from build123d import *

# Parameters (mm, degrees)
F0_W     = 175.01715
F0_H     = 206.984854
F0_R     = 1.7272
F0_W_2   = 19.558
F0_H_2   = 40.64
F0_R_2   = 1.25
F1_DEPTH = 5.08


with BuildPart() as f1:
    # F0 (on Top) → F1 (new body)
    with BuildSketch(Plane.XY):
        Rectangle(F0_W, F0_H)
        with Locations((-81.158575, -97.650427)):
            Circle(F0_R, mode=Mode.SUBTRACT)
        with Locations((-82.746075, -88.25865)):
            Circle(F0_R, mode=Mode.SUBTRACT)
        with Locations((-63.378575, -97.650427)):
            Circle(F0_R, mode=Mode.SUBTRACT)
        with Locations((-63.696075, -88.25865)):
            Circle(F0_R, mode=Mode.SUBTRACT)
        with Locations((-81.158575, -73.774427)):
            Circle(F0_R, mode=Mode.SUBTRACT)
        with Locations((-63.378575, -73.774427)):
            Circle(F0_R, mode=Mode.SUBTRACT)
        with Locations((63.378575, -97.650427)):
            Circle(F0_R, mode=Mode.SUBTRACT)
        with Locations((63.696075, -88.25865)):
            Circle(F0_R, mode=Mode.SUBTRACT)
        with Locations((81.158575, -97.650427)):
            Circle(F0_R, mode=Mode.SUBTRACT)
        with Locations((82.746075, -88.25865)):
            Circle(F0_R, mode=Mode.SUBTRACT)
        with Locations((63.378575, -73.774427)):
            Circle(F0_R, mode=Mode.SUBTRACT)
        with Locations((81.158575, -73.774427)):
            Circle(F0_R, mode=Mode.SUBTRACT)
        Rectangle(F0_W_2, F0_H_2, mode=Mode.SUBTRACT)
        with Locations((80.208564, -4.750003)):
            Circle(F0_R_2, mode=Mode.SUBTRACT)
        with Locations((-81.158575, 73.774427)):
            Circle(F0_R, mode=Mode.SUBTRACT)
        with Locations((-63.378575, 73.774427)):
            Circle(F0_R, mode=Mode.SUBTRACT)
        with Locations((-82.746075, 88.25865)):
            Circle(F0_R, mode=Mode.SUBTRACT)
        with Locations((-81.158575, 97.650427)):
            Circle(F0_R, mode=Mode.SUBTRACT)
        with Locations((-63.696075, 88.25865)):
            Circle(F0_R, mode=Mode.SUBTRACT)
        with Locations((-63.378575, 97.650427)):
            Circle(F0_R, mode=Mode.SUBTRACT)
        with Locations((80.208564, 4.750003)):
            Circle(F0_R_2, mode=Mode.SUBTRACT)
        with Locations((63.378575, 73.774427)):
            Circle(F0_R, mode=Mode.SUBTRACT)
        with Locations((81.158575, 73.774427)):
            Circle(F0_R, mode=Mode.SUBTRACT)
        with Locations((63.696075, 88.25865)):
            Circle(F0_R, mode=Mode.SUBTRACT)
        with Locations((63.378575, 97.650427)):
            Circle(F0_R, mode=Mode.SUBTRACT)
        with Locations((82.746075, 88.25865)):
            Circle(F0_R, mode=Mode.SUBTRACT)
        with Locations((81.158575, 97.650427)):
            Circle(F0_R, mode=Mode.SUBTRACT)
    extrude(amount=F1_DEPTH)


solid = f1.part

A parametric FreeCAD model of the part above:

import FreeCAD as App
import Part
import Sketcher
from FreeCAD import Vector
Q = App.Units.Quantity

doc = App.newDocument("Part")
body = doc.addObject("PartDesign::Body", "Body")

# Sketch on XY plane
sketch1 = body.newObject("Sketcher::SketchObject", "Sketch")
sketch1.AttachmentSupport = (doc.getObject("XY_Plane"), [""])
sketch1.MapMode = "FlatFace"
sketch1.addGeometry([
    Part.LineSegment(Vector(-87.5, 103.5, 0), Vector(-87.5, -103.5, 0)),  # 0
    Part.LineSegment(Vector(-87.5, -103.5, 0), Vector(87.5, -103.5, 0)),  # 1
    Part.LineSegment(Vector(87.5, -103.5, 0), Vector(87.5, 103.5, 0)),  # 2
    Part.LineSegment(Vector(87.5, 103.5, 0), Vector(-87.5, 103.5, 0)),  # 3
    Part.Circle(Vector(-81.2, -97.7, 0), Vector(0, 0, 1), 1.7),  # 4
    Part.Circle(Vector(-82.7, -88.3, 0), Vector(0, 0, 1), 1.7),  # 5
    Part.Circle(Vector(-63.4, -97.7, 0), Vector(0, 0, 1), 1.7),  # 6
    Part.Circle(Vector(-63.7, -88.3, 0), Vector(0, 0, 1), 1.7),  # 7
    Part.Circle(Vector(-81.2, -73.8, 0), Vector(0, 0, 1), 1.7),  # 8
    Part.Circle(Vector(-63.4, -73.8, 0), Vector(0, 0, 1), 1.7),  # 9
    Part.Circle(Vector(63.4, -97.7, 0), Vector(0, 0, 1), 1.7),  # 10
    Part.Circle(Vector(63.7, -88.3, 0), Vector(0, 0, 1), 1.7),  # 11
    Part.Circle(Vector(81.2, -97.7, 0), Vector(0, 0, 1), 1.7),  # 12
    Part.Circle(Vector(82.7, -88.3, 0), Vector(0, 0, 1), 1.7),  # 13
    Part.Circle(Vector(63.4, -73.8, 0), Vector(0, 0, 1), 1.7),  # 14
    Part.Circle(Vector(81.2, -73.8, 0), Vector(0, 0, 1), 1.7),  # 15
    Part.Circle(Vector(80.2, -4.8, 0), Vector(0, 0, 1), 1.2),  # 16
    Part.Circle(Vector(-81.2, 73.8, 0), Vector(0, 0, 1), 1.7),  # 17
    Part.Circle(Vector(-63.4, 73.8, 0), Vector(0, 0, 1), 1.7),  # 18
    Part.Circle(Vector(-82.7, 88.3, 0), Vector(0, 0, 1), 1.7),  # 19
    Part.Circle(Vector(-81.2, 97.7, 0), Vector(0, 0, 1), 1.7),  # 20
    Part.Circle(Vector(-63.7, 88.3, 0), Vector(0, 0, 1), 1.7),  # 21
    Part.Circle(Vector(-63.4, 97.7, 0), Vector(0, 0, 1), 1.7),  # 22
    Part.LineSegment(Vector(9.8, -20.3, 0), Vector(-9.8, -20.3, 0)),  # 23
    Part.LineSegment(Vector(-9.8, -20.3, 0), Vector(-9.8, 20.3, 0)),  # 24
    Part.LineSegment(Vector(-9.8, 20.3, 0), Vector(9.8, 20.3, 0)),  # 25
    Part.LineSegment(Vector(9.8, 20.3, 0), Vector(9.8, -20.3, 0)),  # 26
    Part.Circle(Vector(80.2, 4.8, 0), Vector(0, 0, 1), 1.2),  # 27
    Part.Circle(Vector(63.4, 73.8, 0), Vector(0, 0, 1), 1.7),  # 28
    Part.Circle(Vector(81.2, 73.8, 0), Vector(0, 0, 1), 1.7),  # 29
    Part.Circle(Vector(63.7, 88.3, 0), Vector(0, 0, 1), 1.7),  # 30
    Part.Circle(Vector(63.4, 97.7, 0), Vector(0, 0, 1), 1.7),  # 31
    Part.Circle(Vector(82.7, 88.3, 0), Vector(0, 0, 1), 1.7),  # 32
    Part.Circle(Vector(81.2, 97.7, 0), Vector(0, 0, 1), 1.7),  # 33
], False)
sketch1.addConstraint([
    Sketcher.Constraint("Coincident", 0, 2, 1, 1),
    Sketcher.Constraint("Coincident", 1, 2, 2, 1),
    Sketcher.Constraint("Coincident", 2, 2, 3, 1),
    Sketcher.Constraint("Coincident", 3, 2, 0, 1),
    Sketcher.Constraint("Coincident", 23, 2, 24, 1),
    Sketcher.Constraint("Coincident", 24, 2, 25, 1),
    Sketcher.Constraint("Coincident", 25, 2, 26, 1),
    Sketcher.Constraint("Coincident", 26, 2, 23, 1),
    Sketcher.Constraint("Vertical", 0),
    Sketcher.Constraint("Horizontal", 1),
    Sketcher.Constraint("Vertical", 2),
    Sketcher.Constraint("Horizontal", 3),
    Sketcher.Constraint("Horizontal", 23),
    Sketcher.Constraint("Vertical", 24),
    Sketcher.Constraint("Horizontal", 25),
    Sketcher.Constraint("Vertical", 26),
    Sketcher.Constraint("Equal", 4, 5),
    Sketcher.Constraint("Equal", 5, 6),
    Sketcher.Constraint("Equal", 6, 7),
    Sketcher.Constraint("Equal", 7, 8),
    Sketcher.Constraint("Equal", 8, 9),
    Sketcher.Constraint("Equal", 9, 10),
    Sketcher.Constraint("Equal", 10, 11),
    Sketcher.Constraint("Equal", 11, 12),
    Sketcher.Constraint("Equal", 12, 13),
    Sketcher.Constraint("Equal", 13, 14),
    Sketcher.Constraint("Equal", 14, 15),
    Sketcher.Constraint("Equal", 15, 17),
    Sketcher.Constraint("Equal", 17, 18),
    Sketcher.Constraint("Equal", 18, 19),
    Sketcher.Constraint("Equal", 19, 20),
    Sketcher.Constraint("Equal", 20, 21),
    Sketcher.Constraint("Equal", 21, 22),
    Sketcher.Constraint("Equal", 16, 27),
    Sketcher.Constraint("Equal", 22, 28),
    Sketcher.Constraint("Equal", 28, 29),
    Sketcher.Constraint("Equal", 29, 30),
    Sketcher.Constraint("Equal", 30, 31),
    Sketcher.Constraint("Equal", 31, 32),
    Sketcher.Constraint("Equal", 32, 33),
    Sketcher.Constraint("Symmetric", 15, 3, 17, 3, -1, 1),
    Sketcher.Constraint("Symmetric", 14, 3, 18, 3, -1, 1),
    Sketcher.Constraint("Symmetric", 13, 3, 19, 3, -1, 1),
    Sketcher.Constraint("Symmetric", 12, 3, 20, 3, -1, 1),
    Sketcher.Constraint("Symmetric", 11, 3, 21, 3, -1, 1),
    Sketcher.Constraint("Symmetric", 10, 3, 22, 3, -1, 1),
    Sketcher.Constraint("Symmetric", 9, 3, 28, 3, -1, 1),
    Sketcher.Constraint("Symmetric", 8, 3, 29, 3, -1, 1),
    Sketcher.Constraint("Symmetric", 7, 3, 30, 3, -1, 1),
    Sketcher.Constraint("Symmetric", 6, 3, 31, 3, -1, 1),
    Sketcher.Constraint("Symmetric", 5, 3, 32, 3, -1, 1),
    Sketcher.Constraint("Symmetric", 4, 3, 33, 3, -1, 1),
    Sketcher.Constraint("Symmetric", 0, 2, 2, 2, -1, 1),
    Sketcher.Constraint("Symmetric", 23, 2, 25, 2, -1, 1),
    Sketcher.Constraint("Symmetric", 6, 3, 10, 3, -2),
    Sketcher.Constraint("Symmetric", 7, 3, 11, 3, -2),
    Sketcher.Constraint("Symmetric", 4, 3, 12, 3, -2),
    Sketcher.Constraint("Symmetric", 5, 3, 13, 3, -2),
    Sketcher.Constraint("Symmetric", 9, 3, 14, 3, -2),
    Sketcher.Constraint("Symmetric", 8, 3, 15, 3, -2),
    Sketcher.Constraint("Symmetric", 16, 3, 27, 3, -1),
    Sketcher.Constraint("Horizontal", 4, 3, 6, 3),
    Sketcher.Constraint("Horizontal", 5, 3, 7, 3),
    Sketcher.Constraint("Horizontal", 8, 3, 9, 3),
    Sketcher.Constraint("Vertical", 4, 3, 8, 3),
    Sketcher.Constraint("Vertical", 6, 3, 9, 3),
    Sketcher.Constraint("Diameter", 4, Q("0.136 in")),
    Sketcher.Constraint("DistanceY", 24, 1, 24, 2, Q("1.6 in")),
    Sketcher.Constraint("DistanceX", 23, 2, 23, 1, Q("0.77 in")),
    Sketcher.Constraint("DistanceX", 4, 3, 6, 3, Q("0.7 in")),
    Sketcher.Constraint("Diameter", 16, 2.5),
    Sketcher.Constraint("DistanceX", 5, 3, 7, 3, Q("0.75 in")),
    Sketcher.Constraint("DistanceY", 4, 3, 8, 3, Q("0.94 in")),
    Sketcher.Constraint("DistanceX", 0, 2, 4, 3, Q("0.25 in")),
    Sketcher.Constraint("DistanceY", 0, 2, 4, 3, Q("0.23 in")),
    Sketcher.Constraint("DistanceX", 5, 3, 4, 3, Q("0.0625 in")),
    Sketcher.Constraint("DistanceY", 5, 3, 19, 3, Q("6.9495 in")),
    Sketcher.Constraint("DistanceX", 1, 1, 1, 2, 175.01715),
    Sketcher.Constraint("DistanceY", 0, 2, 0, 1, 206.984854),
    Sketcher.Constraint("DistanceX", 16, 3, 15, 3, 0.950011),
    Sketcher.Constraint("DistanceY", 15, 3, 27, 3, 78.52443),
])
pad1 = body.newObject("PartDesign::Pad", "Pad")
pad1.Profile = sketch1
pad1.Length = Q("0.2 in")

doc.recompute()
